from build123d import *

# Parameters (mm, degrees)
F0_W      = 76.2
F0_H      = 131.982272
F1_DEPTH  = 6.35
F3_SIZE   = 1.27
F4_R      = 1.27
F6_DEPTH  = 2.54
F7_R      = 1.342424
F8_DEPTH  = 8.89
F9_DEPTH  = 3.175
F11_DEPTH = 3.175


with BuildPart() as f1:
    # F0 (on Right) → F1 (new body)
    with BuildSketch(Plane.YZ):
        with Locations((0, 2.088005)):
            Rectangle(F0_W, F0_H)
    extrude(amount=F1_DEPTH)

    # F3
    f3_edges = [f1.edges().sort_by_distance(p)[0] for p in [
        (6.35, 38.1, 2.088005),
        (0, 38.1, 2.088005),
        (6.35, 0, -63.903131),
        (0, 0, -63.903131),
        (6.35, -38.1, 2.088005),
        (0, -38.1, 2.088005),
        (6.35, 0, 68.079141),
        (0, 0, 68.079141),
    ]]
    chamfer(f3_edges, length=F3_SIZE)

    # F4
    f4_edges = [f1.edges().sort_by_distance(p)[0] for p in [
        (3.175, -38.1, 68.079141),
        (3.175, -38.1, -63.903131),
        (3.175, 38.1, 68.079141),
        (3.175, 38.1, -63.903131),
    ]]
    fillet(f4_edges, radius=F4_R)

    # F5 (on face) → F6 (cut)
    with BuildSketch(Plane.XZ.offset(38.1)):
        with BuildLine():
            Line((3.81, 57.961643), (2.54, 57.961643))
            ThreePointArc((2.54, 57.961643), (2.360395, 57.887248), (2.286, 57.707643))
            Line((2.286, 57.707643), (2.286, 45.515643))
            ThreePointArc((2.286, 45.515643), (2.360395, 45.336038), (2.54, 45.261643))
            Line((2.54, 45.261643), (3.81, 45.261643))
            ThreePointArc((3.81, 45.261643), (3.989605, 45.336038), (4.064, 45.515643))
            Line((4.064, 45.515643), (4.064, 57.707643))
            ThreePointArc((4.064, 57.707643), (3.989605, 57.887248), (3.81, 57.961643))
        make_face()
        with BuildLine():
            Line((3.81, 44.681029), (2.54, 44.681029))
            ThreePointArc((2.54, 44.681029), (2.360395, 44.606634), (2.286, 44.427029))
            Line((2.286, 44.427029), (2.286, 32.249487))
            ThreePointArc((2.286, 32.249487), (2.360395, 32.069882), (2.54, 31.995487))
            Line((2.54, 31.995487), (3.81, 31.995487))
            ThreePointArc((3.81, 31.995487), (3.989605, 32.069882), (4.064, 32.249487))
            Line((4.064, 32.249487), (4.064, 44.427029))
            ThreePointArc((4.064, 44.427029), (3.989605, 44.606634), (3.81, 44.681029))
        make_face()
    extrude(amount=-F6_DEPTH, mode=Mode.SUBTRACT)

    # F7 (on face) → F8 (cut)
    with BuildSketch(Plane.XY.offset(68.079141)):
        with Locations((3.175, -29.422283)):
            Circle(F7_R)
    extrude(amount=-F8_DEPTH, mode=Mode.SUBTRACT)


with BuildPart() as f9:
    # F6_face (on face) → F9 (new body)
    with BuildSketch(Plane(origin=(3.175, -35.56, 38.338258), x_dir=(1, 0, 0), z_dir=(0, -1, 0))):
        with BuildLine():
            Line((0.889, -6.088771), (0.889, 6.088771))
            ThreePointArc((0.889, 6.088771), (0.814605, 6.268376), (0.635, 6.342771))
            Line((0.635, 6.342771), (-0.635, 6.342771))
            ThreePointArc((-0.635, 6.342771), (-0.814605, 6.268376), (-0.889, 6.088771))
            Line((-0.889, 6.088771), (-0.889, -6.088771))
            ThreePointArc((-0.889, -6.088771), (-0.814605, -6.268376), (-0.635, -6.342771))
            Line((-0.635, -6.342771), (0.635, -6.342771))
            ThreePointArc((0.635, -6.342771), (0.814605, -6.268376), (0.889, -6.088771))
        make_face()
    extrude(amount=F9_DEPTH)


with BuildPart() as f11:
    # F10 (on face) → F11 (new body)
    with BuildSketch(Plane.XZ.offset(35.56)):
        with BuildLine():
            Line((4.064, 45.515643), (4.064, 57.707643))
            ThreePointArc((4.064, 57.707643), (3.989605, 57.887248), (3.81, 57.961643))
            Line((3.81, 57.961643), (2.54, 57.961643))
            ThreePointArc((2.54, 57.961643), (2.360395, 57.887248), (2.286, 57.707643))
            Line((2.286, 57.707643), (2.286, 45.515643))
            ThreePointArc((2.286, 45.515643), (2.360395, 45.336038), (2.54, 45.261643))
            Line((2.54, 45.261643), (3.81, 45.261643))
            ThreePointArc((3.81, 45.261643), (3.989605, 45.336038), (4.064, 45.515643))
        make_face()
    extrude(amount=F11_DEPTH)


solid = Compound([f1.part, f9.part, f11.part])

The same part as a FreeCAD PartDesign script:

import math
import FreeCAD as App
import Part
import Sketcher

V = App.Vector
Q = App.Units.Quantity


def edges_at(feature, points):
    """Names of the edges that pass closest to the given points."""
    edges = feature.Shape.Edges
    near = lambda p: min(range(len(edges)), key=lambda i: edges[i].distToShape(Part.Vertex(*p))[0])
    return sorted({f"Edge{near(p) + 1}" for p in points})

doc = App.newDocument("Part")
params = doc.addObject("Spreadsheet::Sheet", "Params")
for row, (alias, value) in enumerate([
    ("sketch1_width", "3 in"),
    ("pad1_length", "0.25 in"),
    ("chamfer_size", "0.05 in"),
    ("fillet_radius", "0.05 in"),
    ("sketch2_radius", "0.01 in"),
    ("sketch2_width", "0.05 in"),
    ("sketch2_height", "0.48 in"),
    ("pocket1_length", "0.1 in"),
    ("pocket2_length", "0.35 in"),
    ("sketch4_radius", "0.01 in"),
    ("sketch4_width", "0.05 in"),
    ("pad2_length", "0.125 in"),
    ("sketch5_radius", "0.01 in"),
    ("sketch5_width", "0.05 in"),
    ("sketch5_height", "0.48 in"),
    ("pad3_length", "0.125 in"),
], start=1):
    params.set(f"A{row}", alias)
    params.set(f"B{row}", "=" + value)
    params.setAlias(f"B{row}", alias)

body = doc.addObject("PartDesign::Body", "Body")

# Sketch on YZ plane
sketch1 = doc.addObject("Sketcher::SketchObject", "Sketch")
body.addObject(sketch1)
sketch1.AttachmentSupport = (doc.YZ_Plane, [""])
sketch1.MapMode = "FlatFace"
sketch1.addGeometry([
    Part.LineSegment(V(-38, 68, 0), V(-38, -64, 0)),
    Part.LineSegment(V(-38, -64, 0), V(38, -64, 0)),
    Part.LineSegment(V(38, -64, 0), V(38, 68, 0)),
    Part.LineSegment(V(38, 68, 0), V(-38, 68, 0)),
], False)
sketch1.addConstraint([
    Sketcher.Constraint("Coincident", 0, 2, 1, 1),
    Sketcher.Constraint("Coincident", 1, 2, 2, 1),
    Sketcher.Constraint("Coincident", 2, 2, 3, 1),
    Sketcher.Constraint("Coincident", 3, 2, 0, 1),
    Sketcher.Constraint("Vertical", 0),
    Sketcher.Constraint("Horizontal", 1),
    Sketcher.Constraint("Vertical", 2),
    Sketcher.Constraint("Horizontal", 3),
    Sketcher.Constraint("DistanceX", 1, 1, 1, 2, Q("3 in")),
    Sketcher.Constraint("DistanceX", 0, 2, -1, 1, Q("1.5 in")),
    Sketcher.Constraint("DistanceY", 0, 2, 0, 1, 131.982272),
    Sketcher.Constraint("DistanceY", 0, 2, -1, 1, 63.903131),
])
sketch1.setExpression("Constraints[8]", "Params.sketch1_width")
pad1 = doc.addObject("PartDesign::Pad", "Pad")
body.addObject(pad1)
pad1.Profile = sketch1
pad1.setExpression("Length", "Params.pad1_length")
doc.recompute()

chamfer = doc.addObject("PartDesign::Chamfer", "Chamfer")
body.addObject(chamfer)
chamfer.Base = (pad1, edges_at(pad1, [
    (6.35, 38.1, 2.088),
    (0, 38.1, 2.088),
    (6.35, 0, -63.903),
    (0, 0, -63.903),
    (6.35, -38.1, 2.088),
    (0, -38.1, 2.088),
    (6.35, 0, 68.079),
    (0, 0, 68.079),
]))
chamfer.setExpression("Size", "Params.chamfer_size")
doc.recompute()

fillet = doc.addObject("PartDesign::Fillet", "Fillet")
body.addObject(fillet)
fillet.Base = (chamfer, edges_at(chamfer, [
    (3.175, -38.1, 68.079),
    (3.175, -38.1, -63.903),
    (3.175, 38.1, 68.079),
    (3.175, 38.1, -63.903),
]))
fillet.setExpression("Radius", "Params.fillet_radius")

# Sketch on XZ plane
sketch2 = doc.addObject("Sketcher::SketchObject", "Sketch001")
body.addObject(sketch2)
sketch2.AttachmentSupport = (doc.XZ_Plane, [""])
sketch2.MapMode = "FlatFace"
sketch2.AttachmentOffset = App.Placement(V(0, 0, 1.5 * 25.4), App.Rotation())
sketch2.addGeometry([
    Part.LineSegment(V(3.81, 57.96, 0), V(2.54, 57.96, 0)),  # 0
    Part.ArcOfCircle(Part.Circle(V(2.54, 57.71, 0), V(0, 0, 1), 0.25), math.radians(90), math.radians(180)),  # 1
    Part.LineSegment(V(2.29, 57.71, 0), V(2.29, 45.52, 0)),  # 2
    Part.ArcOfCircle(Part.Circle(V(2.54, 45.52, 0), V(0, 0, 1), 0.25), math.radians(-180), math.radians(-90)),  # 3
    Part.LineSegment(V(2.54, 45.26, 0), V(3.81, 45.26, 0)),  # 4
    Part.ArcOfCircle(Part.Circle(V(3.81, 45.52, 0), V(0, 0, 1), 0.25), math.radians(-90), math.radians(0)),  # 5
    Part.LineSegment(V(4.06, 45.52, 0), V(4.06, 57.71, 0)),  # 6
    Part.ArcOfCircle(Part.Circle(V(3.81, 57.71, 0), V(0, 0, 1), 0.25), math.radians(0), math.radians(90)),  # 7
    Part.LineSegment(V(3.81, 44.68, 0), V(2.54, 44.68, 0)),  # 8
    Part.ArcOfCircle(Part.Circle(V(2.54, 44.43, 0), V(0, 0, 1), 0.25), math.radians(90), math.radians(180)),  # 9
    Part.LineSegment(V(2.29, 44.43, 0), V(2.29, 32.25, 0)),  # 10
    Part.ArcOfCircle(Part.Circle(V(2.54, 32.25, 0), V(0, 0, 1), 0.25), math.radians(-180), math.radians(-90)),  # 11
    Part.LineSegment(V(2.54, 32, 0), V(3.81, 32, 0)),  # 12
    Part.ArcOfCircle(Part.Circle(V(3.81, 32.25, 0), V(0, 0, 1), 0.25), math.radians(-90), math.radians(0)),  # 13
    Part.LineSegment(V(4.06, 32.25, 0), V(4.06, 44.43, 0)),  # 14
    Part.ArcOfCircle(Part.Circle(V(3.81, 44.43, 0), V(0, 0, 1), 0.25), math.radians(0), math.radians(90)),  # 15
], False)
sketch2.addConstraint([
    Sketcher.Constraint("Tangent", 0, 2, 1, 1),
    Sketcher.Constraint("Tangent", 1, 2, 2, 1),
    Sketcher.Constraint("Tangent", 2, 2, 3, 1),
    Sketcher.Constraint("Tangent", 3, 2, 4, 1),
    Sketcher.Constraint("Tangent", 4, 2, 5, 1),
    Sketcher.Constraint("Tangent", 5, 2, 6, 1),
    Sketcher.Constraint("Tangent", 6, 2, 7, 1),
    Sketcher.Constraint("Tangent", 7, 2, 0, 1),
    Sketcher.Constraint("Tangent", 8, 2, 9, 1),
    Sketcher.Constraint("Tangent", 9, 2, 10, 1),
    Sketcher.Constraint("Tangent", 10, 2, 11, 1),
    Sketcher.Constraint("Tangent", 11, 2, 12, 1),
    Sketcher.Constraint("Tangent", 12, 2, 13, 1),
    Sketcher.Constraint("Tangent", 13, 2, 14, 1),
    Sketcher.Constraint("Tangent", 14, 2, 15, 1),
    Sketcher.Constraint("Tangent", 15, 2, 8, 1),
    Sketcher.Constraint("Horizontal", 0),
    Sketcher.Constraint("Vertical", 2),
    Sketcher.Constraint("Horizontal", 4),
    Sketcher.Constraint("Vertical", 6),
    Sketcher.Constraint("Horizontal", 8),
    Sketcher.Constraint("Vertical", 10),
    Sketcher.Constraint("Horizontal", 12),
    Sketcher.Constraint("Vertical", 14),
    Sketcher.Constraint("Equal", 1, 3),
    Sketcher.Constraint("Equal", 3, 5),
    Sketcher.Constraint("Equal", 5, 7),
    Sketcher.Constraint("Equal", 7, 9),
    Sketcher.Constraint("Equal", 9, 11),
    Sketcher.Constraint("Equal", 11, 13),
    Sketcher.Constraint("Equal", 13, 15),
    Sketcher.Constraint("Vertical", 3, 3, 9, 3),
    Sketcher.Constraint("Vertical", 7, 3, 13, 3),
    Sketcher.Constraint("Radius", 1, Q("0.01 in")),
    Sketcher.Constraint("DistanceX", 0, 2, 0, 1, Q("0.05 in")),
    Sketcher.Constraint("DistanceY", 2, 2, 2, 1, Q("0.48 in")),
    Sketcher.Constraint("DistanceX", -1, 1, 1, 3, Q("0.1 in")),
    Sketcher.Constraint("DistanceY", 10, 2, 10, 1, 12.177542),
    Sketcher.Constraint("DistanceY", -1, 1, 9, 3, 44.427029),
    Sketcher.Constraint("DistanceY", -1, 1, 1, 3, 57.707643),
])
sketch2.setExpression("Constraints[33]", "Params.sketch2_radius")
sketch2.setExpression("Constraints[34]", "Params.sketch2_width")
sketch2.setExpression("Constraints[35]", "Params.sketch2_height")
pocket1 = doc.addObject("PartDesign::Pocket", "Pocket")
body.addObject(pocket1)
pocket1.Profile = sketch2
pocket1.setExpression("Length", "Params.pocket1_length")

# Sketch on XY plane
sketch3 = doc.addObject("Sketcher::SketchObject", "Sketch002")
body.addObject(sketch3)
sketch3.AttachmentSupport = (doc.XY_Plane, [""])
sketch3.MapMode = "FlatFace"
sketch3.AttachmentOffset = App.Placement(V(0, 0, 68.079141), App.Rotation())
sketch3.addGeometry(Part.Circle(V(3.2, -29.4, 0), V(0, 0, 1), 1.3), False)
sketch3.addConstraint([
    Sketcher.Constraint("Diameter", 0, 2.684848),
    Sketcher.Constraint("DistanceX", -1, 1, 0, 3, Q("0.125 in")),
    Sketcher.Constraint("DistanceY", 0, 3, -1, 1, 29.422283),
])
pocket2 = doc.addObject("PartDesign::Pocket", "Pocket001")
body.addObject(pocket2)
pocket2.Profile = sketch3
pocket2.setExpression("Length", "Params.pocket2_length")
body2 = doc.addObject("PartDesign::Body", "Body001")

# Sketch on XZ plane
sketch4 = doc.addObject("Sketcher::SketchObject", "Sketch003")
body2.addObject(sketch4)
sketch4.AttachmentSupport = (doc.getObject("XZ_Plane001"), [""])
sketch4.MapMode = "FlatFace"
sketch4.AttachmentOffset = App.Placement(V(0, 0, 1.4 * 25.4), App.Rotation())
sketch4.addGeometry([
    Part.LineSegment(V(4.06, 32.25, 0), V(4.06, 44.43, 0)),  # 0
    Part.ArcOfCircle(Part.Circle(V(3.81, 44.43, 0), V(0, 0, 1), 0.25), math.radians(0), math.radians(90)),  # 1
    Part.LineSegment(V(3.81, 44.68, 0), V(2.54, 44.68, 0)),  # 2
    Part.ArcOfCircle(Part.Circle(V(2.54, 44.43, 0), V(0, 0, 1), 0.25), math.radians(90), math.radians(180)),  # 3
    Part.LineSegment(V(2.29, 44.43, 0), V(2.29, 32.25, 0)),  # 4
    Part.ArcOfCircle(Part.Circle(V(2.54, 32.25, 0), V(0, 0, 1), 0.25), math.radians(-180), math.radians(-90)),  # 5
    Part.LineSegment(V(2.54, 32, 0), V(3.81, 32, 0)),  # 6
    Part.ArcOfCircle(Part.Circle(V(3.81, 32.25, 0), V(0, 0, 1), 0.25), math.radians(-90), math.radians(0)),  # 7
], False)
sketch4.addConstraint([
    Sketcher.Constraint("Tangent", 0, 2, 1, 1),
    Sketcher.Constraint("Tangent", 1, 2, 2, 1),
    Sketcher.Constraint("Tangent", 2, 2, 3, 1),
    Sketcher.Constraint("Tangent", 3, 2, 4, 1),
    Sketcher.Constraint("Tangent", 4, 2, 5, 1),
    Sketcher.Constraint("Tangent", 5, 2, 6, 1),
    Sketcher.Constraint("Tangent", 6, 2, 7, 1),
    Sketcher.Constraint("Tangent", 7, 2, 0, 1),
    Sketcher.Constraint("Vertical", 0),
    Sketcher.Constraint("Horizontal", 2),
    Sketcher.Constraint("Vertical", 4),
    Sketcher.Constraint("Horizontal", 6),
    Sketcher.Constraint("Equal", 1, 3),
    Sketcher.Constraint("Equal", 3, 5),
    Sketcher.Constraint("Equal", 5, 7),
    Sketcher.Constraint("Radius", 1, Q("0.01 in")),
    Sketcher.Constraint("DistanceX", 2, 2, 2, 1, Q("0.05 in")),
    Sketcher.Constraint("DistanceX", -1, 1, 3, 3, Q("0.1 in")),
    Sketcher.Constraint("DistanceY", 0, 1, 0, 2, 12.177542),
    Sketcher.Constraint("DistanceY", -1, 1, 1, 3, 44.427029),
])
sketch4.setExpression("Constraints[15]", "Params.sketch4_radius")
sketch4.setExpression("Constraints[16]", "Params.sketch4_width")
pad2 = doc.addObject("PartDesign::Pad", "Pad001")
body2.addObject(pad2)
pad2.Profile = sketch4
pad2.setExpression("Length", "Params.pad2_length")
body3 = doc.addObject("PartDesign::Body", "Body002")

# Sketch on XZ plane
sketch5 = doc.addObject("Sketcher::SketchObject", "Sketch004")
body3.addObject(sketch5)
sketch5.AttachmentSupport = (doc.getObject("XZ_Plane002"), [""])
sketch5.MapMode = "FlatFace"
sketch5.AttachmentOffset = App.Placement(V(0, 0, 1.4 * 25.4), App.Rotation())
sketch5.addGeometry([
    Part.LineSegment(V(4.06, 45.52, 0), V(4.06, 57.71, 0)),  # 0
    Part.ArcOfCircle(Part.Circle(V(3.81, 57.71, 0), V(0, 0, 1), 0.25), math.radians(0), math.radians(90)),  # 1
    Part.LineSegment(V(3.81, 57.96, 0), V(2.54, 57.96, 0)),  # 2
    Part.ArcOfCircle(Part.Circle(V(2.54, 57.71, 0), V(0, 0, 1), 0.25), math.radians(90), math.radians(180)),  # 3
    Part.LineSegment(V(2.29, 57.71, 0), V(2.29, 45.52, 0)),  # 4
    Part.ArcOfCircle(Part.Circle(V(2.54, 45.52, 0), V(0, 0, 1), 0.25), math.radians(-180), math.radians(-90)),  # 5
    Part.LineSegment(V(2.54, 45.26, 0), V(3.81, 45.26, 0)),  # 6
    Part.ArcOfCircle(Part.Circle(V(3.81, 45.52, 0), V(0, 0, 1), 0.25), math.radians(-90), math.radians(0)),  # 7
], False)
sketch5.addConstraint([
    Sketcher.Constraint("Tangent", 0, 2, 1, 1),
    Sketcher.Constraint("Tangent", 1, 2, 2, 1),
    Sketcher.Constraint("Tangent", 2, 2, 3, 1),
    Sketcher.Constraint("Tangent", 3, 2, 4, 1),
    Sketcher.Constraint("Tangent", 4, 2, 5, 1),
    Sketcher.Constraint("Tangent", 5, 2, 6, 1),
    Sketcher.Constraint("Tangent", 6, 2, 7, 1),
    Sketcher.Constraint("Tangent", 7, 2, 0, 1),
    Sketcher.Constraint("Vertical", 0),
    Sketcher.Constraint("Horizontal", 2),
    Sketcher.Constraint("Vertical", 4),
    Sketcher.Constraint("Horizontal", 6),
    Sketcher.Constraint("Equal", 1, 3),
    Sketcher.Constraint("Equal", 3, 5),
    Sketcher.Constraint("Equal", 5, 7),
    Sketcher.Constraint("Radius", 1, Q("0.01 in")),
    Sketcher.Constraint("DistanceX", 2, 2, 2, 1, Q("0.05 in")),
    Sketcher.Constraint("DistanceY", 0, 1, 0, 2, Q("0.48 in")),
    Sketcher.Constraint("DistanceX", -1, 1, 3, 3, Q("0.1 in")),
    Sketcher.Constraint("DistanceY", -1, 1, 1, 3, 57.707643),
])
sketch5.setExpression("Constraints[15]", "Params.sketch5_radius")
sketch5.setExpression("Constraints[16]", "Params.sketch5_width")
sketch5.setExpression("Constraints[17]", "Params.sketch5_height")
pad3 = doc.addObject("PartDesign::Pad", "Pad002")
body3.addObject(pad3)
pad3.Profile = sketch5
pad3.setExpression("Length", "Params.pad3_length")

doc.recompute()
